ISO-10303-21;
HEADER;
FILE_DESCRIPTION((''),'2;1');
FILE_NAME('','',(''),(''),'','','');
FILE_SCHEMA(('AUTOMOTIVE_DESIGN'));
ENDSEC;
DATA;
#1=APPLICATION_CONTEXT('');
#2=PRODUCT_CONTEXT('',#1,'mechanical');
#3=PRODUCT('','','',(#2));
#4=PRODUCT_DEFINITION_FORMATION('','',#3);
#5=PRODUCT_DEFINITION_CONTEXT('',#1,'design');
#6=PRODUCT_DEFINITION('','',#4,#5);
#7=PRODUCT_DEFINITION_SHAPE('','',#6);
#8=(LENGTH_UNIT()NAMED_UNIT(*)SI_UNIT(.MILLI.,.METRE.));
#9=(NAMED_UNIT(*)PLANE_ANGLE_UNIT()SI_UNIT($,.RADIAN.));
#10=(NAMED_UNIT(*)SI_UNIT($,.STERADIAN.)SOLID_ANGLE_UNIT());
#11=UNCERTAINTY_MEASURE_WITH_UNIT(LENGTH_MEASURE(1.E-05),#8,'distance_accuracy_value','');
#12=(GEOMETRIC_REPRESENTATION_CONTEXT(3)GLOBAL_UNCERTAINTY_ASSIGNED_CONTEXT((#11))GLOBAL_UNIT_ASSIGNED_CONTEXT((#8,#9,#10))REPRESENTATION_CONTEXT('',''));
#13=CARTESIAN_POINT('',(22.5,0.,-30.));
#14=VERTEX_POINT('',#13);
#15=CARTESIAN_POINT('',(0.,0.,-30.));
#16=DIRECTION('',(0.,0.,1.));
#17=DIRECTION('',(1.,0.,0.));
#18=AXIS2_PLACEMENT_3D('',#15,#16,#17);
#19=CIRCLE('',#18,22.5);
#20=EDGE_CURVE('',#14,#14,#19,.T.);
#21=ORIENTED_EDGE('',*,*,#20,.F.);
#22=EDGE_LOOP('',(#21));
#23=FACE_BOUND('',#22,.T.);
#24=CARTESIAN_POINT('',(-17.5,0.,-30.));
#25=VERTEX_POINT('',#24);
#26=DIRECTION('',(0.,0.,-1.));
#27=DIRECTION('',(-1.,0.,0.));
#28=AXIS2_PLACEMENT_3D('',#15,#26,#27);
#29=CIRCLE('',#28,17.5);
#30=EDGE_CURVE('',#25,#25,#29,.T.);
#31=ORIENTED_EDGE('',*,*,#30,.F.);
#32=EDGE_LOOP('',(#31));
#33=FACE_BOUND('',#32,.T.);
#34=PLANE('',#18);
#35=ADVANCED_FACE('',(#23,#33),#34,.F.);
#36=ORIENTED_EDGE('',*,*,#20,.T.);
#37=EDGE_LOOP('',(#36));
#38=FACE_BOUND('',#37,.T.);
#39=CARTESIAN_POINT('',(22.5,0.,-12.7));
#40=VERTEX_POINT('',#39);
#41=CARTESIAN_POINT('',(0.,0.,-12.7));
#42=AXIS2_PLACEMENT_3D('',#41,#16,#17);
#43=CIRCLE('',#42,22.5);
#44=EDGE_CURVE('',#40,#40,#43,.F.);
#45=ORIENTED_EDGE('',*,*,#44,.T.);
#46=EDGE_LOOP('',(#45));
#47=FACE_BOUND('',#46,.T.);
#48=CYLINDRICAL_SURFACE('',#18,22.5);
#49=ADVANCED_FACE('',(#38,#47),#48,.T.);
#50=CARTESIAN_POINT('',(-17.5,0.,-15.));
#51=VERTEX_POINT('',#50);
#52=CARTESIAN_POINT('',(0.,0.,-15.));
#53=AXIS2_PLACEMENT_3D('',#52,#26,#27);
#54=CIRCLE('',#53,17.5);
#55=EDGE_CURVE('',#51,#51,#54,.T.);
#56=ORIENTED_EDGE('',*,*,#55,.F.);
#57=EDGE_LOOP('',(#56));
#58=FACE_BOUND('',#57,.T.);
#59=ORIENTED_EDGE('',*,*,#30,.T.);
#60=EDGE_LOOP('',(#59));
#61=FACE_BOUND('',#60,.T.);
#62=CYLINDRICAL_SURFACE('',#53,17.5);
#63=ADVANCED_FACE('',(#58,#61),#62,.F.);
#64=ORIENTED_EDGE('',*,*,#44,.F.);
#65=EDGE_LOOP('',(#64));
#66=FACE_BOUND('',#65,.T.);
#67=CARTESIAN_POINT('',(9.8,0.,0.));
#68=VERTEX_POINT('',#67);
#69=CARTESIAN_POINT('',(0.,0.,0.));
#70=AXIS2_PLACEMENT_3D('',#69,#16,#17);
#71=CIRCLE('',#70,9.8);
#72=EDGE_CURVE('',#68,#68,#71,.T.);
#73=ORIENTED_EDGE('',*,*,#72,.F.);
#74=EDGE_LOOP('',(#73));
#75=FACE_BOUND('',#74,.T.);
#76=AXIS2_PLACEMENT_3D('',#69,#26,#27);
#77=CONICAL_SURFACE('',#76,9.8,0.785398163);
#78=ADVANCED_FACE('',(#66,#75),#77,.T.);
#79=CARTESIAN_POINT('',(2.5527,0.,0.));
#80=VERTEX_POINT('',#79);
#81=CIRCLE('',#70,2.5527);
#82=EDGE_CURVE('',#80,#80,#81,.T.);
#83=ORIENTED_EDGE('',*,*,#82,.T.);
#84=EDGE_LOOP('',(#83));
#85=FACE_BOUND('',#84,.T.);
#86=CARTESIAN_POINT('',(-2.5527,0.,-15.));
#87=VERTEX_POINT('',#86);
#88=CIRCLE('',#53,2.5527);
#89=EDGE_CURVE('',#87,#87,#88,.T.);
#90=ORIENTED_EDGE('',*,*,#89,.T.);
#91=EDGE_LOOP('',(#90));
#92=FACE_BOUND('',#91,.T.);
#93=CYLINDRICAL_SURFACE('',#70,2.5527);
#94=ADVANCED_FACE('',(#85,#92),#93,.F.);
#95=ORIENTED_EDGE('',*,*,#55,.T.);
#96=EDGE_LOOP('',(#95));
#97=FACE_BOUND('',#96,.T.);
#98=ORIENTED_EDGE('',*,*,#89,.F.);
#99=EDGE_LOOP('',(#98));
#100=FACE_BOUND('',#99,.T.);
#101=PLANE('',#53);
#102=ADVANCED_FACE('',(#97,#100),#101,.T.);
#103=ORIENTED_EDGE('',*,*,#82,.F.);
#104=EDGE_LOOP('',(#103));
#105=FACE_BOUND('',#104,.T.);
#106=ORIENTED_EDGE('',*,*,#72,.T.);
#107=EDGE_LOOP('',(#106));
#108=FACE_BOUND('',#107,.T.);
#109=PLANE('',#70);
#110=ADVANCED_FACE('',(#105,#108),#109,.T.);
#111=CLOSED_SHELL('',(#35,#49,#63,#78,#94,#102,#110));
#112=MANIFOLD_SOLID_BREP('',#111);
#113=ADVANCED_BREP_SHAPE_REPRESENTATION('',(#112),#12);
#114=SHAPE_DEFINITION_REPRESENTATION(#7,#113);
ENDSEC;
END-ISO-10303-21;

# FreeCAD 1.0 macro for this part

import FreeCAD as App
import Part
import Sketcher
from FreeCAD import Vector
Q = App.Units.Quantity


def edges_at(feature, points):
    """Names of the edges that pass closest to the given points."""
    edges = feature.Shape.Edges
    near = lambda p: min(range(len(edges)), key=lambda i: edges[i].distToShape(Part.Vertex(*p))[0])
    return sorted({f"Edge{near(p) + 1}" for p in points})

doc = App.newDocument("Part")
body = doc.addObject("PartDesign::Body", "Body")

# Sketch on XY plane
sketch1 = body.newObject("Sketcher::SketchObject", "Sketch")
sketch1.AttachmentSupport = (doc.getObject("XY_Plane"), [""])
sketch1.MapMode = "FlatFace"
sketch1.addGeometry(Part.Circle(Vector(0, 0, 0), Vector(0, 0, 1), 22.5), False)
sketch1.addConstraint([
    Sketcher.Constraint("Coincident", 0, 3, -1, 1),
    Sketcher.Constraint("Diameter", 0, Q("45 mm")),
])
pad1 = body.newObject("PartDesign::Pad", "Pad")
pad1.Profile = sketch1
pad1.Length = 30
pad1.Reversed = True

# Sketch on XY plane
sketch2 = body.newObject("Sketcher::SketchObject", "Sketch001")
sketch2.AttachmentSupport = (doc.getObject("XY_Plane"), [""])
sketch2.MapMode = "FlatFace"
sketch2.AttachmentOffset = App.Placement(Vector(0, 0, -30), App.Rotation())
sketch2.addGeometry(Part.Circle(Vector(0, 0, 0), Vector(0, 0, 1), 17.5), False)
sketch2.addConstraint([
    Sketcher.Constraint("Coincident", 0, 3, -1, 1),
    Sketcher.Constraint("Diameter", 0, Q("35 mm")),
])
pocket1 = body.newObject("PartDesign::Pocket", "Pocket")
pocket1.Profile = sketch2
pocket1.Length = 15
pocket1.Reversed = True

# Sketch on XY plane
sketch3 = body.newObject("Sketcher::SketchObject", "Sketch002")
sketch3.AttachmentSupport = (doc.getObject("XY_Plane"), [""])
sketch3.MapMode = "FlatFace"
sketch3.addGeometry(Part.Circle(Vector(0, 0, 0), Vector(0, 0, 1), 2.5527), False)
sketch3.addConstraint([
    Sketcher.Constraint("Coincident", 0, 3, -1, 1),
    Sketcher.Constraint("Diameter", 0, Q("5.1054 mm")),
])
doc.recompute()
hole = body.newObject("PartDesign::Hole", "Hole")
hole.Profile = sketch3
hole.ThreadType = "None"
hole.Diameter = 5.1054
hole.DepthType = "ThroughAll"
doc.recompute()

chamfer = body.newObject("PartDesign::Chamfer", "Chamfer")
chamfer.Base = (hole, edges_at(hole, [(-22.5, 0, 0)]))
chamfer.Size = 12.7

doc.recompute()
